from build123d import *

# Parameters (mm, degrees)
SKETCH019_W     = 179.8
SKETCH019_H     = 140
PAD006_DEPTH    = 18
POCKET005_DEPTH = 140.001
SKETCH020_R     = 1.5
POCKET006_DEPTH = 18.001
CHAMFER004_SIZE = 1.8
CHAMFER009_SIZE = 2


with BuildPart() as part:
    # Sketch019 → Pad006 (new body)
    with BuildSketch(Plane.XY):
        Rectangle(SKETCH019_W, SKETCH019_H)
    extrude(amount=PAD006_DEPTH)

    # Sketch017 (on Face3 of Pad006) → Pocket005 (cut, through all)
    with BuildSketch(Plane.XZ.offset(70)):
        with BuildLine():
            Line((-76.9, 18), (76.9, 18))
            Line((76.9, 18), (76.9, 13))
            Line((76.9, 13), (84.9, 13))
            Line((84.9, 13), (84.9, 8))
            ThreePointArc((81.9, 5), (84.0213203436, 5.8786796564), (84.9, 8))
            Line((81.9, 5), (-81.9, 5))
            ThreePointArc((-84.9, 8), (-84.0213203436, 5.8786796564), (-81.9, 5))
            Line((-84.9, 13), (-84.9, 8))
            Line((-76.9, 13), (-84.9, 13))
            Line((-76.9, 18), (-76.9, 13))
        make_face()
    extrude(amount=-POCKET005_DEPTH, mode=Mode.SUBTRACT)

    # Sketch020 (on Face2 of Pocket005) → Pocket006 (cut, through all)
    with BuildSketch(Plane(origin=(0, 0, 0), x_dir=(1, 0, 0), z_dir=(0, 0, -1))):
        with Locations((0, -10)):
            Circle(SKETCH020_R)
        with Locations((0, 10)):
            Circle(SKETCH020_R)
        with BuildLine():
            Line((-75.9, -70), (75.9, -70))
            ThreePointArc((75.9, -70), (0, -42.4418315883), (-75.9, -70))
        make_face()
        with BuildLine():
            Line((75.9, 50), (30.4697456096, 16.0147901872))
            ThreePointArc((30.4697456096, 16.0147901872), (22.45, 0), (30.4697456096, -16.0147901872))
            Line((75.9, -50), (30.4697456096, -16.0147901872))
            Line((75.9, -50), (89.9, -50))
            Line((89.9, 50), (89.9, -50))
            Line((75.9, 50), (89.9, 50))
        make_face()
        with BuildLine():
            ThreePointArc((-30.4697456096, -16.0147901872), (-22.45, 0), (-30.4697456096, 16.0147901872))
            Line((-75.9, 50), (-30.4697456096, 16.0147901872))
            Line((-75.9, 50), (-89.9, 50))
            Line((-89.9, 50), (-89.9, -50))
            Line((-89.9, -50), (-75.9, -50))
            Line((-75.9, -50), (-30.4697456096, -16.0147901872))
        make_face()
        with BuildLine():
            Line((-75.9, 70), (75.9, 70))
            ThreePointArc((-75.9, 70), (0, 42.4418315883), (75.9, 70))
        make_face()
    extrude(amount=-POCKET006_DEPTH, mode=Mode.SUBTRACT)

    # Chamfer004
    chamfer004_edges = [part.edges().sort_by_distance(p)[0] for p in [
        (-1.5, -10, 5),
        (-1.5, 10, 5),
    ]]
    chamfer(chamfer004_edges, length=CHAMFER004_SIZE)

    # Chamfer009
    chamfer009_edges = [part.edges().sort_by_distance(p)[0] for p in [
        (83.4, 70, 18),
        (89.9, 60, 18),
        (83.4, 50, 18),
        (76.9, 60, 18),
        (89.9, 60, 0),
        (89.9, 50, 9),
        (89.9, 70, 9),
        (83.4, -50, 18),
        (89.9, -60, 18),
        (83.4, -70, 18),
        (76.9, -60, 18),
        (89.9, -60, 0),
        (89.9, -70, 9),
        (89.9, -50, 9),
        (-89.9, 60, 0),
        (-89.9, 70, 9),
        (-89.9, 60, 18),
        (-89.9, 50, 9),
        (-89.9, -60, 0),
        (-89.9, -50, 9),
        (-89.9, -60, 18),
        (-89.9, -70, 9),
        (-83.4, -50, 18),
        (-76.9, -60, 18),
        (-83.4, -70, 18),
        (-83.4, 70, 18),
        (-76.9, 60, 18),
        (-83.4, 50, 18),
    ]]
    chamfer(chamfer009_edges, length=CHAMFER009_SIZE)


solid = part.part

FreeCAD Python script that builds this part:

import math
import FreeCAD as App
import Part
import Sketcher
from FreeCAD import Vector


def edges_at(feature, points):
    """Names of the edges that pass closest to the given points."""
    edges = feature.Shape.Edges
    near = lambda p: min(range(len(edges)), key=lambda i: edges[i].distToShape(Part.Vertex(*p))[0])
    return sorted({f"Edge{near(p) + 1}" for p in points})

doc = App.newDocument("Part")
body = doc.addObject("PartDesign::Body", "Body")

# Sketch on XY plane
sketch1 = doc.addObject("Sketcher::SketchObject", "Sketch")
body.addObject(sketch1)
sketch1.AttachmentSupport = (doc.XY_Plane, [""])
sketch1.MapMode = "FlatFace"
sketch1.addGeometry(Part.LineSegment(Vector(-90, 70, 0), Vector(-90, -70, 0)), False)
sketch1.addGeometry(Part.LineSegment(Vector(-90, -70, 0), Vector(90, -70, 0)), False)
sketch1.addGeometry(Part.LineSegment(Vector(90, -70, 0), Vector(90, 70, 0)), False)
sketch1.addGeometry(Part.LineSegment(Vector(90, 70, 0), Vector(-90, 70, 0)), False)
sketch1.addConstraint(Sketcher.Constraint("Coincident", 0, 2, 1, 1))
sketch1.addConstraint(Sketcher.Constraint("Coincident", 1, 2, 2, 1))
sketch1.addConstraint(Sketcher.Constraint("Coincident", 2, 2, 3, 1))
sketch1.addConstraint(Sketcher.Constraint("Coincident", 3, 2, 0, 1))
sketch1.addConstraint(Sketcher.Constraint("Vertical", 0))
sketch1.addConstraint(Sketcher.Constraint("Horizontal", 1))
sketch1.addConstraint(Sketcher.Constraint("Vertical", 2))
sketch1.addConstraint(Sketcher.Constraint("Horizontal", 3))
sketch1.addConstraint(Sketcher.Constraint("Symmetric", 0, 2, 2, 2, -1, 1))
sketch1.addConstraint(Sketcher.Constraint("DistanceY", 0, 2, 0, 1, 140.0))
sketch1.addConstraint(Sketcher.Constraint("DistanceX", 1, 1, 1, 2, 179.8))
pad1 = doc.addObject("PartDesign::Pad", "Pad")
body.addObject(pad1)
pad1.Profile = sketch1
pad1.Length = 18

# Sketch on XZ plane
sketch2 = doc.addObject("Sketcher::SketchObject", "Sketch001")
body.addObject(sketch2)
sketch2.AttachmentSupport = (doc.XZ_Plane, [""])
sketch2.MapMode = "FlatFace"
sketch2.AttachmentOffset = App.Placement(Vector(0, 0, 70), App.Rotation())
sketch2.addGeometry(Part.LineSegment(Vector(76.9, 18, 0), Vector(-76.9, 18, 0)), False)
sketch2.addGeometry(Part.LineSegment(Vector(-76.9, 18, 0), Vector(-76.9, 13, 0)), False)
sketch2.addGeometry(Part.LineSegment(Vector(-76.9, 13, 0), Vector(-84.9, 13, 0)), False)
sketch2.addGeometry(Part.LineSegment(Vector(-84.9, 13, 0), Vector(-84.9, 8, 0)), False)
sketch2.addGeometry(Part.ArcOfCircle(Part.Circle(Vector(-81.9, 8, 0), Vector(0, 0, 1), 3), math.radians(180), math.radians(270)), False)
sketch2.addGeometry(Part.LineSegment(Vector(-81.9, 5, 0), Vector(81.9, 5, 0)), False)
sketch2.addGeometry(Part.ArcOfCircle(Part.Circle(Vector(81.9, 8, 0), Vector(0, 0, 1), 3), math.radians(-90), math.radians(0)), False)
sketch2.addGeometry(Part.LineSegment(Vector(84.9, 8, 0), Vector(84.9, 13, 0)), False)
sketch2.addGeometry(Part.LineSegment(Vector(84.9, 13, 0), Vector(76.9, 13, 0)), False)
sketch2.addGeometry(Part.LineSegment(Vector(76.9, 13, 0), Vector(76.9, 18, 0)), False)
sketch2.addConstraint(Sketcher.Constraint("Coincident", 0, 2, 1, 1))
sketch2.addConstraint(Sketcher.Constraint("Coincident", 1, 2, 2, 1))
sketch2.addConstraint(Sketcher.Constraint("Coincident", 2, 2, 3, 1))
sketch2.addConstraint(Sketcher.Constraint("Tangent", 3, 2, 4, 1))
sketch2.addConstraint(Sketcher.Constraint("Tangent", 4, 2, 5, 1))
sketch2.addConstraint(Sketcher.Constraint("Tangent", 5, 2, 6, 1))
sketch2.addConstraint(Sketcher.Constraint("Tangent", 6, 2, 7, 1))
sketch2.addConstraint(Sketcher.Constraint("Coincident", 7, 2, 8, 1))
sketch2.addConstraint(Sketcher.Constraint("Coincident", 8, 2, 9, 1))
sketch2.addConstraint(Sketcher.Constraint("Coincident", 9, 2, 0, 1))
sketch2.addConstraint(Sketcher.Constraint("Horizontal", 0))
sketch2.addConstraint(Sketcher.Constraint("Vertical", 1))
sketch2.addConstraint(Sketcher.Constraint("Horizontal", 2))
sketch2.addConstraint(Sketcher.Constraint("Vertical", 3))
sketch2.addConstraint(Sketcher.Constraint("Horizontal", 5))
sketch2.addConstraint(Sketcher.Constraint("Vertical", 7))
sketch2.addConstraint(Sketcher.Constraint("Horizontal", 8))
sketch2.addConstraint(Sketcher.Constraint("Vertical", 9))
sketch2.addConstraint(Sketcher.Constraint("Equal", 4, 6))
sketch2.addConstraint(Sketcher.Constraint("Symmetric", 2, 2, 7, 2, -2))
sketch2.addConstraint(Sketcher.Constraint("Equal", 2, 8))
sketch2.addConstraint(Sketcher.Constraint("Equal", 1, 3))
sketch2.addConstraint(Sketcher.Constraint("Radius", 4, 3.0))
sketch2.addConstraint(Sketcher.Constraint("DistanceX", 2, 2, 2, 1, 8.0))
sketch2.addConstraint(Sketcher.Constraint("DistanceY", 1, 2, 1, 1, 5.0))
sketch2.addConstraint(Sketcher.Constraint("DistanceX", 0, 2, 0, 1, 153.8))
sketch2.addConstraint(Sketcher.Constraint("DistanceY", -1, 1, 4, 3, 8.0))
pocket1 = doc.addObject("PartDesign::Pocket", "Pocket")
body.addObject(pocket1)
pocket1.Profile = sketch2
pocket1.Type = "ThroughAll"

# Sketch on XY plane
sketch3 = doc.addObject("Sketcher::SketchObject", "Sketch002")
body.addObject(sketch3)
sketch3.AttachmentSupport = (doc.XY_Plane, [""])
sketch3.MapMode = "FlatFace"
sketch3.addGeometry(Part.Circle(Vector(0, 10, 0), Vector(0, 0, 1), 1.5), False)
sketch3.addGeometry(Part.Circle(Vector(0, -10, 0), Vector(0, 0, 1), 1.5), False)
sketch3.addGeometry(Part.LineSegment(Vector(-75.9, 70, 0), Vector(75.9, 70, 0)), False)
sketch3.addGeometry(Part.ArcOfCircle(Part.Circle(Vector(0, 160.7, 0), Vector(0, 0, 1), 118.3), math.radians(-130), math.radians(-50)), False)
sketch3.addGeometry(Part.LineSegment(Vector(75.9, -50, 0), Vector(30.5, -16, 0)), False)
sketch3.addGeometry(Part.ArcOfCircle(Part.Circle(Vector(42.5, 0, 0), Vector(0, 0, 1), 20), math.radians(127), math.radians(233)), False)
sketch3.addGeometry(Part.LineSegment(Vector(30.5, 16, 0), Vector(75.9, 50, 0)), False)
sketch3.addGeometry(Part.LineSegment(Vector(75.9, 50, 0), Vector(89.9, 50, 0)), False)
sketch3.addGeometry(Part.LineSegment(Vector(89.9, 50, 0), Vector(89.9, -50, 0)), False)
sketch3.addGeometry(Part.LineSegment(Vector(89.9, -50, 0), Vector(75.9, -50, 0)), False)
sketch3.addGeometry(Part.ArcOfCircle(Part.Circle(Vector(-42.5, 0, 0), Vector(0, 0, 1), 20), math.radians(-53), math.radians(53)), False)
sketch3.addGeometry(Part.LineSegment(Vector(-30.5, -16, 0), Vector(-75.9, -50, 0)), False)
sketch3.addGeometry(Part.LineSegment(Vector(-75.9, -50, 0), Vector(-89.9, -50, 0)), False)
sketch3.addGeometry(Part.LineSegment(Vector(-89.9, -50, 0), Vector(-89.9, 50, 0)), False)
sketch3.addGeometry(Part.LineSegment(Vector(-89.9, 50, 0), Vector(-75.9, 50, 0)), False)
sketch3.addGeometry(Part.LineSegment(Vector(-75.9, 50, 0), Vector(-30.5, 16, 0)), False)
sketch3.addGeometry(Part.LineSegment(Vector(75.9, -70, 0), Vector(-75.9, -70, 0)), False)
sketch3.addGeometry(Part.ArcOfCircle(Part.Circle(Vector(0, -160.7, 0), Vector(0, 0, 1), 118.3), math.radians(50), math.radians(130)), False)
sketch3.addConstraint(Sketcher.Constraint("Coincident", 2, 1, 3, 1))
sketch3.addConstraint(Sketcher.Constraint("Coincident", 3, 2, 2, 2))
sketch3.addConstraint(Sketcher.Constraint("Tangent", 4, 2, 5, 2))
sketch3.addConstraint(Sketcher.Constraint("Tangent", 5, 1, 6, 1))
sketch3.addConstraint(Sketcher.Constraint("Coincident", 6, 2, 7, 1))
sketch3.addConstraint(Sketcher.Constraint("Coincident", 7, 2, 8, 1))
sketch3.addConstraint(Sketcher.Constraint("Coincident", 8, 2, 9, 1))
sketch3.addConstraint(Sketcher.Constraint("Coincident", 9, 2, 4, 1))
sketch3.addConstraint(Sketcher.Constraint("Tangent", 10, 1, 11, 1))
sketch3.addConstraint(Sketcher.Constraint("Coincident", 11, 2, 12, 1))
sketch3.addConstraint(Sketcher.Constraint("Coincident", 12, 2, 13, 1))
sketch3.addConstraint(Sketcher.Constraint("Coincident", 13, 2, 14, 1))
sketch3.addConstraint(Sketcher.Constraint("Coincident", 14, 2, 15, 1))
sketch3.addConstraint(Sketcher.Constraint("Tangent", 15, 2, 10, 2))
sketch3.addConstraint(Sketcher.Constraint("Coincident", 16, 1, 17, 1))
sketch3.addConstraint(Sketcher.Constraint("Coincident", 17, 2, 16, 2))
sketch3.addConstraint(Sketcher.Constraint("Horizontal", 2))
sketch3.addConstraint(Sketcher.Constraint("Horizontal", 7))
sketch3.addConstraint(Sketcher.Constraint("Vertical", 8))
sketch3.addConstraint(Sketcher.Constraint("Horizontal", 9))
sketch3.addConstraint(Sketcher.Constraint("Horizontal", 12))
sketch3.addConstraint(Sketcher.Constraint("Vertical", 13))
sketch3.addConstraint(Sketcher.Constraint("Horizontal", 14))
sketch3.addConstraint(Sketcher.Constraint("Horizontal", 16))
sketch3.addConstraint(Sketcher.Constraint("Equal", 0, 1))
sketch3.addConstraint(Sketcher.Constraint("Equal", 5, 10))
sketch3.addConstraint(Sketcher.Constraint("Equal", 3, 17))
sketch3.addConstraint(Sketcher.Constraint("Symmetric", 0, 3, 1, 3, -1, 1))
sketch3.addConstraint(Sketcher.Constraint("Symmetric", 5, 3, 10, 3, -1, 1))
sketch3.addConstraint(Sketcher.Constraint("Symmetric", 3, 3, 17, 3, -1, 1))
sketch3.addConstraint(Sketcher.Constraint("Symmetric", 6, 2, 11, 2, -1, 1))
sketch3.addConstraint(Sketcher.Constraint("Symmetric", 8, 2, 13, 2, -1, 1))
sketch3.addConstraint(Sketcher.Constraint("Symmetric", 4, 2, 10, 1, -2))
sketch3.addConstraint(Sketcher.Constraint("Symmetric", 6, 2, 14, 2, -2))
sketch3.addConstraint(Sketcher.Constraint("Symmetric", 3, 2, 16, 1, -1))
sketch3.addConstraint(Sketcher.Constraint("PointOnObject", 0, 3, -2))
sketch3.addConstraint(Sketcher.Constraint("Vertical", 3, 2, 6, 2))
sketch3.addConstraint(Sketcher.Constraint("Diameter", 0, 3.0))
sketch3.addConstraint(Sketcher.Constraint("Radius", 5, 20.0))
sketch3.addConstraint(Sketcher.Constraint("Radius", 3, 118.3))
sketch3.addConstraint(Sketcher.Constraint("DistanceX", 7, 1, 7, 2, 14.0))
sketch3.addConstraint(Sketcher.Constraint("DistanceY", 8, 2, 8, 1, 100.0))
sketch3.addConstraint(Sketcher.Constraint("DistanceX", 2, 1, 2, 2, 151.8))
sketch3.addConstraint(Sketcher.Constraint("DistanceY", -1, 1, 0, 3, 10.0))
sketch3.addConstraint(Sketcher.Constraint("DistanceY", -1, 1, 2, 1, 70.0))
sketch3.addConstraint(Sketcher.Constraint("DistanceX", 10, 3, 5, 3, 84.9))
pocket2 = doc.addObject("PartDesign::Pocket", "Pocket001")
body.addObject(pocket2)
pocket2.Profile = sketch3
pocket2.Type = "ThroughAll"
pocket2.Reversed = True
doc.recompute()

chamfer = doc.addObject("PartDesign::Chamfer", "Chamfer")
body.addObject(chamfer)
chamfer.Base = (pocket2, edges_at(pocket2, [(-1.5, -10, 5), (-1.5, 10, 5)]))
chamfer.Size = 1.8
doc.recompute()

chamfer2 = doc.addObject("PartDesign::Chamfer", "Chamfer001")
body.addObject(chamfer2)
chamfer2.Base = (chamfer, edges_at(chamfer, [
    (83.4, 70, 18),
    (89.9, 60, 18),
    (83.4, 50, 18),
    (76.9, 60, 18),
    (89.9, 60, 0),
    (89.9, 50, 9),
    (89.9, 70, 9),
    (83.4, -50, 18),
    (89.9, -60, 18),
    (83.4, -70, 18),
    (76.9, -60, 18),
    (89.9, -60, 0),
    (89.9, -70, 9),
    (89.9, -50, 9),
    (-89.9, 60, 0),
    (-89.9, 70, 9),
    (-89.9, 60, 18),
    (-89.9, 50, 9),
    (-89.9, -60, 0),
    (-89.9, -50, 9),
    (-89.9, -60, 18),
    (-89.9, -70, 9),
    (-83.4, -50, 18),
    (-76.9, -60, 18),
    (-83.4, -70, 18),
    (-83.4, 70, 18),
    (-76.9, 60, 18),
    (-83.4, 50, 18),
]))
chamfer2.Size = 2

doc.recompute()
